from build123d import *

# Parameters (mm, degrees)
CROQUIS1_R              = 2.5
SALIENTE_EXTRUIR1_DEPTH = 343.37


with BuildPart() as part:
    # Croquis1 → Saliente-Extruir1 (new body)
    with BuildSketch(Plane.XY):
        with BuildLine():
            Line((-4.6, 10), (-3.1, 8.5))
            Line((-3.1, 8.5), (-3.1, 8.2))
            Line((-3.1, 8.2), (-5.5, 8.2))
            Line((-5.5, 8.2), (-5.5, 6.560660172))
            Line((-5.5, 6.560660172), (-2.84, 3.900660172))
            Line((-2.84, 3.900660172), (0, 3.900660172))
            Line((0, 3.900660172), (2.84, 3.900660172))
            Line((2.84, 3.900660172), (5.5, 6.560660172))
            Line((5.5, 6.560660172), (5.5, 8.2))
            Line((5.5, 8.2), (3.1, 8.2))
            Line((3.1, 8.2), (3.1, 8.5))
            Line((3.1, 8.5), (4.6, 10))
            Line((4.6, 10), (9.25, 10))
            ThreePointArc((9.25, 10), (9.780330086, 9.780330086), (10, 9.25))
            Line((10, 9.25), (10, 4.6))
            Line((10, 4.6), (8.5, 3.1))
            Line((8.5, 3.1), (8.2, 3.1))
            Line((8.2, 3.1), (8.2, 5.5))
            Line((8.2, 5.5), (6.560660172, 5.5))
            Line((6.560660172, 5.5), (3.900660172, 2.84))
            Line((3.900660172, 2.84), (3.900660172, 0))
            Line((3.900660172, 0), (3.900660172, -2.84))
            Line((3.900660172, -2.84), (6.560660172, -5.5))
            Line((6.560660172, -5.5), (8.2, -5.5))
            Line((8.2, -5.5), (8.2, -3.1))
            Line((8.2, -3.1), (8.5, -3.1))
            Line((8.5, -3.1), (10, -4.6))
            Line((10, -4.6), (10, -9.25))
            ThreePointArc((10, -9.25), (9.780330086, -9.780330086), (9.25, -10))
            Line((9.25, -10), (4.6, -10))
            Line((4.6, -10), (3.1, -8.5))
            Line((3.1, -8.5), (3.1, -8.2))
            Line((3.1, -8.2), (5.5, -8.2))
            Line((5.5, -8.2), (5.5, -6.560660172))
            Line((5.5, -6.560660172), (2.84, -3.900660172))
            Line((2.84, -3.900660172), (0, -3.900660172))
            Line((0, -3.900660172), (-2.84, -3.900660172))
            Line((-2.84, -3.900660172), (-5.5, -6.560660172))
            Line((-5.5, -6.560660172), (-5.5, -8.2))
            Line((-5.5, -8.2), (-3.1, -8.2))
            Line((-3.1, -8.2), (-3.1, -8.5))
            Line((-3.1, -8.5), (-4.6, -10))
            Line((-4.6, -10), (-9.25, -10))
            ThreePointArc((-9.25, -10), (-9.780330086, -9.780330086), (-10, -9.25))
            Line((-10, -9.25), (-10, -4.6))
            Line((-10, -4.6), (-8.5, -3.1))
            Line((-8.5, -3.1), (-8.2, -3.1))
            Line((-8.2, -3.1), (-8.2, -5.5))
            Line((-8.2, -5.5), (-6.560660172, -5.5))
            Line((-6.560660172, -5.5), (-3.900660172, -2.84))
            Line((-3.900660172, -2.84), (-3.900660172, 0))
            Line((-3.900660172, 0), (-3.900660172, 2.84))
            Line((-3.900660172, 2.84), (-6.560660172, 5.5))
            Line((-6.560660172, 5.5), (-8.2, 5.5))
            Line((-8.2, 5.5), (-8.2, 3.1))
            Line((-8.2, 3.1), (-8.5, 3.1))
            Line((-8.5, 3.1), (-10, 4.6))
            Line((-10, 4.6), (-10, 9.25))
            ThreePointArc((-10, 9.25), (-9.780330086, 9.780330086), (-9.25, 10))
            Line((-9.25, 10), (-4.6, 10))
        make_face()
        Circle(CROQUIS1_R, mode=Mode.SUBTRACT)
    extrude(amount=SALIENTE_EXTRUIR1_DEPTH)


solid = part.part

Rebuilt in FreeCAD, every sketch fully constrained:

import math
import FreeCAD as App
import Part
import Sketcher

V = App.Vector

doc = App.newDocument("Part")
body = doc.addObject("PartDesign::Body", "Body")

# Sketch on XY plane
sketch1 = body.newObject("Sketcher::SketchObject", "Sketch")
sketch1.AttachmentSupport = (doc.getObject("XY_Plane"), [""])
sketch1.MapMode = "FlatFace"
sketch1.addGeometry(Part.LineSegment(V(-3.1, 8.5, 0), V(-4.6, 10, 0)), False)
sketch1.addGeometry(Part.LineSegment(V(-4.6, 10, 0), V(-9.25, 10, 0)), False)
sketch1.addGeometry(Part.ArcOfCircle(Part.Circle(V(-9.25, 9.25, 0), V(0, 0, 1), 0.75), math.radians(90), math.radians(180)), False)
sketch1.addGeometry(Part.LineSegment(V(-10, 9.25, 0), V(-10, 4.6, 0)), False)
sketch1.addGeometry(Part.LineSegment(V(-10, 4.6, 0), V(-8.5, 3.1, 0)), False)
sketch1.addGeometry(Part.LineSegment(V(-8.5, 3.1, 0), V(-8.2, 3.1, 0)), False)
sketch1.addGeometry(Part.LineSegment(V(-8.2, 3.1, 0), V(-8.2, 5.5, 0)), False)
sketch1.addGeometry(Part.LineSegment(V(-8.2, 5.5, 0), V(-6.56, 5.5, 0)), False)
sketch1.addGeometry(Part.LineSegment(V(-6.56, 5.5, 0), V(-3.9, 2.84, 0)), False)
sketch1.addGeometry(Part.LineSegment(V(-3.9, 2.84, 0), V(-3.9, -2.84, 0)), False)
sketch1.addGeometry(Part.LineSegment(V(-3.9, -2.84, 0), V(-6.56, -5.5, 0)), False)
sketch1.addGeometry(Part.LineSegment(V(-6.56, -5.5, 0), V(-8.2, -5.5, 0)), False)
sketch1.addGeometry(Part.LineSegment(V(-8.2, -5.5, 0), V(-8.2, -3.1, 0)), False)
sketch1.addGeometry(Part.LineSegment(V(-8.2, -3.1, 0), V(-8.5, -3.1, 0)), False)
sketch1.addGeometry(Part.LineSegment(V(-8.5, -3.1, 0), V(-10, -4.6, 0)), False)
sketch1.addGeometry(Part.LineSegment(V(-10, -4.6, 0), V(-10, -9.25, 0)), False)
sketch1.addGeometry(Part.ArcOfCircle(Part.Circle(V(-9.25, -9.25, 0), V(0, 0, 1), 0.75), math.radians(180), math.radians(270)), False)
sketch1.addGeometry(Part.LineSegment(V(-9.25, -10, 0), V(-4.6, -10, 0)), False)
sketch1.addGeometry(Part.LineSegment(V(-4.6, -10, 0), V(-3.1, -8.5, 0)), False)
sketch1.addGeometry(Part.LineSegment(V(-3.1, -8.5, 0), V(-3.1, -8.2, 0)), False)
sketch1.addGeometry(Part.LineSegment(V(-3.1, -8.2, 0), V(-5.5, -8.2, 0)), False)
sketch1.addGeometry(Part.LineSegment(V(-5.5, -8.2, 0), V(-5.5, -6.56, 0)), False)
sketch1.addGeometry(Part.LineSegment(V(-5.5, -6.56, 0), V(-2.84, -3.9, 0)), False)
sketch1.addGeometry(Part.LineSegment(V(-2.84, -3.9, 0), V(2.84, -3.9, 0)), False)
sketch1.addGeometry(Part.LineSegment(V(2.84, -3.9, 0), V(5.5, -6.56, 0)), False)
sketch1.addGeometry(Part.LineSegment(V(5.5, -6.56, 0), V(5.5, -8.2, 0)), False)
sketch1.addGeometry(Part.LineSegment(V(5.5, -8.2, 0), V(3.1, -8.2, 0)), False)
sketch1.addGeometry(Part.LineSegment(V(3.1, -8.2, 0), V(3.1, -8.5, 0)), False)
sketch1.addGeometry(Part.LineSegment(V(3.1, -8.5, 0), V(4.6, -10, 0)), False)
sketch1.addGeometry(Part.LineSegment(V(4.6, -10, 0), V(9.25, -10, 0)), False)
sketch1.addGeometry(Part.ArcOfCircle(Part.Circle(V(9.25, -9.25, 0), V(0, 0, 1), 0.75), math.radians(-90), math.radians(0)), False)
sketch1.addGeometry(Part.LineSegment(V(10, -9.25, 0), V(10, -4.6, 0)), False)
sketch1.addGeometry(Part.LineSegment(V(10, -4.6, 0), V(8.5, -3.1, 0)), False)
sketch1.addGeometry(Part.LineSegment(V(8.5, -3.1, 0), V(8.2, -3.1, 0)), False)
sketch1.addGeometry(Part.LineSegment(V(8.2, -3.1, 0), V(8.2, -5.5, 0)), False)
sketch1.addGeometry(Part.LineSegment(V(8.2, -5.5, 0), V(6.56, -5.5, 0)), False)
sketch1.addGeometry(Part.LineSegment(V(6.56, -5.5, 0), V(3.9, -2.84, 0)), False)
sketch1.addGeometry(Part.LineSegment(V(3.9, -2.84, 0), V(3.9, 2.84, 0)), False)
sketch1.addGeometry(Part.LineSegment(V(3.9, 2.84, 0), V(6.56, 5.5, 0)), False)
sketch1.addGeometry(Part.LineSegment(V(6.56, 5.5, 0), V(8.2, 5.5, 0)), False)
sketch1.addGeometry(Part.LineSegment(V(8.2, 5.5, 0), V(8.2, 3.1, 0)), False)
sketch1.addGeometry(Part.LineSegment(V(8.2, 3.1, 0), V(8.5, 3.1, 0)), False)
sketch1.addGeometry(Part.LineSegment(V(8.5, 3.1, 0), V(10, 4.6, 0)), False)
sketch1.addGeometry(Part.LineSegment(V(10, 4.6, 0), V(10, 9.25, 0)), False)
sketch1.addGeometry(Part.ArcOfCircle(Part.Circle(V(9.25, 9.25, 0), V(0, 0, 1), 0.75), math.radians(0), math.radians(90)), False)
sketch1.addGeometry(Part.LineSegment(V(9.25, 10, 0), V(4.6, 10, 0)), False)
sketch1.addGeometry(Part.LineSegment(V(4.6, 10, 0), V(3.1, 8.5, 0)), False)
sketch1.addGeometry(Part.LineSegment(V(3.1, 8.5, 0), V(3.1, 8.2, 0)), False)
sketch1.addGeometry(Part.LineSegment(V(3.1, 8.2, 0), V(5.5, 8.2, 0)), False)
sketch1.addGeometry(Part.LineSegment(V(5.5, 8.2, 0), V(5.5, 6.56, 0)), False)
sketch1.addGeometry(Part.LineSegment(V(5.5, 6.56, 0), V(2.84, 3.9, 0)), False)
sketch1.addGeometry(Part.LineSegment(V(2.84, 3.9, 0), V(-2.84, 3.9, 0)), False)
sketch1.addGeometry(Part.LineSegment(V(-2.84, 3.9, 0), V(-5.5, 6.56, 0)), False)
sketch1.addGeometry(Part.LineSegment(V(-5.5, 6.56, 0), V(-5.5, 8.2, 0)), False)
sketch1.addGeometry(Part.LineSegment(V(-5.5, 8.2, 0), V(-3.1, 8.2, 0)), False)
sketch1.addGeometry(Part.LineSegment(V(-3.1, 8.2, 0), V(-3.1, 8.5, 0)), False)
sketch1.addGeometry(Part.Circle(V(0, 0, 0), V(0, 0, 1), 2.5), False)
sketch1.addConstraint(Sketcher.Constraint("Coincident", 0, 2, 1, 1))
sketch1.addConstraint(Sketcher.Constraint("Tangent", 1, 2, 2, 1))
sketch1.addConstraint(Sketcher.Constraint("Tangent", 2, 2, 3, 1))
sketch1.addConstraint(Sketcher.Constraint("Coincident", 3, 2, 4, 1))
sketch1.addConstraint(Sketcher.Constraint("Coincident", 4, 2, 5, 1))
sketch1.addConstraint(Sketcher.Constraint("Coincident", 5, 2, 6, 1))
sketch1.addConstraint(Sketcher.Constraint("Coincident", 6, 2, 7, 1))
sketch1.addConstraint(Sketcher.Constraint("Coincident", 7, 2, 8, 1))
sketch1.addConstraint(Sketcher.Constraint("Coincident", 8, 2, 9, 1))
sketch1.addConstraint(Sketcher.Constraint("Coincident", 9, 2, 10, 1))
sketch1.addConstraint(Sketcher.Constraint("Coincident", 10, 2, 11, 1))
sketch1.addConstraint(Sketcher.Constraint("Coincident", 11, 2, 12, 1))
sketch1.addConstraint(Sketcher.Constraint("Coincident", 12, 2, 13, 1))
sketch1.addConstraint(Sketcher.Constraint("Coincident", 13, 2, 14, 1))
sketch1.addConstraint(Sketcher.Constraint("Coincident", 14, 2, 15, 1))
sketch1.addConstraint(Sketcher.Constraint("Tangent", 15, 2, 16, 1))
sketch1.addConstraint(Sketcher.Constraint("Tangent", 16, 2, 17, 1))
sketch1.addConstraint(Sketcher.Constraint("Coincident", 17, 2, 18, 1))
sketch1.addConstraint(Sketcher.Constraint("Coincident", 18, 2, 19, 1))
sketch1.addConstraint(Sketcher.Constraint("Coincident", 19, 2, 20, 1))
sketch1.addConstraint(Sketcher.Constraint("Coincident", 20, 2, 21, 1))
sketch1.addConstraint(Sketcher.Constraint("Coincident", 21, 2, 22, 1))
sketch1.addConstraint(Sketcher.Constraint("Coincident", 22, 2, 23, 1))
sketch1.addConstraint(Sketcher.Constraint("Coincident", 23, 2, 24, 1))
sketch1.addConstraint(Sketcher.Constraint("Coincident", 24, 2, 25, 1))
sketch1.addConstraint(Sketcher.Constraint("Coincident", 25, 2, 26, 1))
sketch1.addConstraint(Sketcher.Constraint("Coincident", 26, 2, 27, 1))
sketch1.addConstraint(Sketcher.Constraint("Coincident", 27, 2, 28, 1))
sketch1.addConstraint(Sketcher.Constraint("Coincident", 28, 2, 29, 1))
sketch1.addConstraint(Sketcher.Constraint("Tangent", 29, 2, 30, 1))
sketch1.addConstraint(Sketcher.Constraint("Tangent", 30, 2, 31, 1))
sketch1.addConstraint(Sketcher.Constraint("Coincident", 31, 2, 32, 1))
sketch1.addConstraint(Sketcher.Constraint("Coincident", 32, 2, 33, 1))
sketch1.addConstraint(Sketcher.Constraint("Coincident", 33, 2, 34, 1))
sketch1.addConstraint(Sketcher.Constraint("Coincident", 34, 2, 35, 1))
sketch1.addConstraint(Sketcher.Constraint("Coincident", 35, 2, 36, 1))
sketch1.addConstraint(Sketcher.Constraint("Coincident", 36, 2, 37, 1))
sketch1.addConstraint(Sketcher.Constraint("Coincident", 37, 2, 38, 1))
sketch1.addConstraint(Sketcher.Constraint("Coincident", 38, 2, 39, 1))
sketch1.addConstraint(Sketcher.Constraint("Coincident", 39, 2, 40, 1))
sketch1.addConstraint(Sketcher.Constraint("Coincident", 40, 2, 41, 1))
sketch1.addConstraint(Sketcher.Constraint("Coincident", 41, 2, 42, 1))
sketch1.addConstraint(Sketcher.Constraint("Coincident", 42, 2, 43, 1))
sketch1.addConstraint(Sketcher.Constraint("Tangent", 43, 2, 44, 1))
sketch1.addConstraint(Sketcher.Constraint("Tangent", 44, 2, 45, 1))
sketch1.addConstraint(Sketcher.Constraint("Coincident", 45, 2, 46, 1))
sketch1.addConstraint(Sketcher.Constraint("Coincident", 46, 2, 47, 1))
sketch1.addConstraint(Sketcher.Constraint("Coincident", 47, 2, 48, 1))
sketch1.addConstraint(Sketcher.Constraint("Coincident", 48, 2, 49, 1))
sketch1.addConstraint(Sketcher.Constraint("Coincident", 49, 2, 50, 1))
sketch1.addConstraint(Sketcher.Constraint("Coincident", 50, 2, 51, 1))
sketch1.addConstraint(Sketcher.Constraint("Coincident", 51, 2, 52, 1))
sketch1.addConstraint(Sketcher.Constraint("Coincident", 52, 2, 53, 1))
sketch1.addConstraint(Sketcher.Constraint("Coincident", 53, 2, 54, 1))
sketch1.addConstraint(Sketcher.Constraint("Coincident", 54, 2, 55, 1))
sketch1.addConstraint(Sketcher.Constraint("Coincident", 55, 2, 0, 1))
sketch1.addConstraint(Sketcher.Constraint("Horizontal", 1))
sketch1.addConstraint(Sketcher.Constraint("Vertical", 3))
sketch1.addConstraint(Sketcher.Constraint("Horizontal", 5))
sketch1.addConstraint(Sketcher.Constraint("Vertical", 6))
sketch1.addConstraint(Sketcher.Constraint("Horizontal", 7))
sketch1.addConstraint(Sketcher.Constraint("Vertical", 9))
sketch1.addConstraint(Sketcher.Constraint("Horizontal", 11))
sketch1.addConstraint(Sketcher.Constraint("Vertical", 12))
sketch1.addConstraint(Sketcher.Constraint("Horizontal", 13))
sketch1.addConstraint(Sketcher.Constraint("Vertical", 15))
sketch1.addConstraint(Sketcher.Constraint("Horizontal", 17))
sketch1.addConstraint(Sketcher.Constraint("Vertical", 19))
sketch1.addConstraint(Sketcher.Constraint("Horizontal", 20))
sketch1.addConstraint(Sketcher.Constraint("Vertical", 21))
sketch1.addConstraint(Sketcher.Constraint("Horizontal", 23))
sketch1.addConstraint(Sketcher.Constraint("Vertical", 25))
sketch1.addConstraint(Sketcher.Constraint("Horizontal", 26))
sketch1.addConstraint(Sketcher.Constraint("Vertical", 27))
sketch1.addConstraint(Sketcher.Constraint("Horizontal", 29))
sketch1.addConstraint(Sketcher.Constraint("Vertical", 31))
sketch1.addConstraint(Sketcher.Constraint("Horizontal", 33))
sketch1.addConstraint(Sketcher.Constraint("Vertical", 34))
sketch1.addConstraint(Sketcher.Constraint("Horizontal", 35))
sketch1.addConstraint(Sketcher.Constraint("Vertical", 37))
sketch1.addConstraint(Sketcher.Constraint("Horizontal", 39))
sketch1.addConstraint(Sketcher.Constraint("Vertical", 40))
sketch1.addConstraint(Sketcher.Constraint("Horizontal", 41))
sketch1.addConstraint(Sketcher.Constraint("Vertical", 43))
sketch1.addConstraint(Sketcher.Constraint("Horizontal", 45))
sketch1.addConstraint(Sketcher.Constraint("Vertical", 47))
sketch1.addConstraint(Sketcher.Constraint("Horizontal", 48))
sketch1.addConstraint(Sketcher.Constraint("Vertical", 49))
sketch1.addConstraint(Sketcher.Constraint("Horizontal", 51))
sketch1.addConstraint(Sketcher.Constraint("Vertical", 53))
sketch1.addConstraint(Sketcher.Constraint("Horizontal", 54))
sketch1.addConstraint(Sketcher.Constraint("Vertical", 55))
sketch1.addConstraint(Sketcher.Constraint("Coincident", 56, 3, -1, 1))
sketch1.addConstraint(Sketcher.Constraint("Equal", 2, 16))
sketch1.addConstraint(Sketcher.Constraint("Equal", 16, 30))
sketch1.addConstraint(Sketcher.Constraint("Equal", 30, 44))
sketch1.addConstraint(Sketcher.Constraint("Symmetric", 2, 3, 30, 3, -1, 1))
sketch1.addConstraint(Sketcher.Constraint("Symmetric", 16, 3, 44, 3, -1, 1))
sketch1.addConstraint(Sketcher.Constraint("Symmetric", 4, 2, 32, 2, -1, 1))
sketch1.addConstraint(Sketcher.Constraint("Symmetric", 6, 2, 34, 2, -1, 1))
sketch1.addConstraint(Sketcher.Constraint("Symmetric", 8, 2, 36, 2, -1, 1))
sketch1.addConstraint(Sketcher.Constraint("Symmetric", 10, 2, 38, 2, -1, 1))
sketch1.addConstraint(Sketcher.Constraint("Symmetric", 12, 2, 40, 2, -1, 1))
sketch1.addConstraint(Sketcher.Constraint("Symmetric", 18, 2, 46, 2, -1, 1))
sketch1.addConstraint(Sketcher.Constraint("Symmetric", 20, 2, 48, 2, -1, 1))
sketch1.addConstraint(Sketcher.Constraint("Symmetric", 22, 2, 50, 2, -1, 1))
sketch1.addConstraint(Sketcher.Constraint("Symmetric", 24, 2, 52, 2, -1, 1))
sketch1.addConstraint(Sketcher.Constraint("Symmetric", 26, 2, 54, 2, -1, 1))
sketch1.addConstraint(Sketcher.Constraint("Symmetric", 16, 3, 30, 3, -2))
sketch1.addConstraint(Sketcher.Constraint("Symmetric", 21, 2, 24, 2, -2))
sketch1.addConstraint(Sketcher.Constraint("Symmetric", 19, 2, 26, 2, -2))
sketch1.addConstraint(Sketcher.Constraint("Symmetric", 13, 2, 32, 2, -2))
sketch1.addConstraint(Sketcher.Constraint("Symmetric", 11, 2, 34, 2, -2))
sketch1.addConstraint(Sketcher.Constraint("Parallel", 0, 4))
sketch1.addConstraint(Sketcher.Constraint("Parallel", 4, 8))
sketch1.addConstraint(Sketcher.Constraint("Perpendicular", 8, 10))
sketch1.addConstraint(Sketcher.Constraint("Parallel", 10, 14))
sketch1.addConstraint(Sketcher.Constraint("Parallel", 14, 18))
sketch1.addConstraint(Sketcher.Constraint("Parallel", 18, 22))
sketch1.addConstraint(Sketcher.Constraint("Perpendicular", 22, 24))
sketch1.addConstraint(Sketcher.Constraint("Parallel", 24, 28))
sketch1.addConstraint(Sketcher.Constraint("Parallel", 28, 32))
sketch1.addConstraint(Sketcher.Constraint("Parallel", 32, 36))
sketch1.addConstraint(Sketcher.Constraint("Perpendicular", 36, 38))
sketch1.addConstraint(Sketcher.Constraint("Parallel", 38, 42))
sketch1.addConstraint(Sketcher.Constraint("Parallel", 42, 46))
sketch1.addConstraint(Sketcher.Constraint("Parallel", 46, 50))
sketch1.addConstraint(Sketcher.Constraint("Perpendicular", 50, 52))
sketch1.addConstraint(Sketcher.Constraint("Horizontal", 18, 2, 27, 2))
sketch1.addConstraint(Sketcher.Constraint("Horizontal", 14, 2, 31, 2))
sketch1.addConstraint(Sketcher.Constraint("Horizontal", 9, 2, 36, 2))
sketch1.addConstraint(Sketcher.Constraint("Horizontal", 3, 2, 42, 2))
sketch1.addConstraint(Sketcher.Constraint("Horizontal", 46, 2, 55, 2))
sketch1.addConstraint(Sketcher.Constraint("Equal", 45, 3))
sketch1.addConstraint(Sketcher.Constraint("Equal", 54, 6))
sketch1.addConstraint(Sketcher.Constraint("Equal", 51, 9))
sketch1.addConstraint(Sketcher.Constraint("Equal", 41, 19))
sketch1.addConstraint(Sketcher.Constraint("Equal", 39, 21))
sketch1.addConstraint(Sketcher.Constraint("Equal", 0, 4))
sketch1.addConstraint(Sketcher.Constraint("Equal", 10, 22))
sketch1.addConstraint(Sketcher.Constraint("Diameter", 56, 5.0))
sketch1.addConstraint(Sketcher.Constraint("Radius", 2, 0.75))
sketch1.addConstraint(Sketcher.Constraint("DistanceX", 5, 1, 5, 2, 0.3))
sketch1.addConstraint(Sketcher.Constraint("DistanceX", 20, 2, 20, 1, 2.4))
sketch1.addConstraint(Sketcher.Constraint("DistanceY", -1, 1, 0, 2, 10.0))
sketch1.addConstraint(Sketcher.Constraint("DistanceX", 1, 2, 1, 1, 4.65))
sketch1.addConstraint(Sketcher.Constraint("DistanceX", 23, 1, 23, 2, 5.68))
sketch1.addConstraint(Sketcher.Constraint("DistanceX", 4, 2, -1, 1, 8.5))
sketch1.addConstraint(Sketcher.Constraint("DistanceX", 7, 1, 7, 2, 1.63934))
pad1 = body.newObject("PartDesign::Pad", "Pad")
pad1.Profile = sketch1
pad1.Length = 343.37

doc.recompute()
